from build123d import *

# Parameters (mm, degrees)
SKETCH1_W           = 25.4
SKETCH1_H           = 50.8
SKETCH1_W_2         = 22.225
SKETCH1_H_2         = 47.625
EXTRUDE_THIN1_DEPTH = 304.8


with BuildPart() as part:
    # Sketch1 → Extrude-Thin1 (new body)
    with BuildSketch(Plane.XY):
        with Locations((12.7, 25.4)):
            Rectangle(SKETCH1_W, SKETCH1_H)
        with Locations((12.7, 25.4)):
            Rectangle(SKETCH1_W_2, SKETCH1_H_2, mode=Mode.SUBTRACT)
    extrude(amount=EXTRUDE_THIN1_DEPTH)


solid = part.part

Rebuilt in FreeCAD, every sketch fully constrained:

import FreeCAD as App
import Part
import Sketcher
from FreeCAD import Vector
Q = App.Units.Quantity


def add_polygon(sketch, points):
    """Adds a closed chain of lines whose ends are joined by coincident constraints."""
    first, n = sketch.GeometryCount, len(points)
    for a, b in zip(points, points[1:] + points[:1]):
        sketch.addGeometry(Part.LineSegment(App.Vector(*a, 0), App.Vector(*b, 0)), False)
    for i in range(n):
        sketch.addConstraint(Sketcher.Constraint("Coincident", first + i, 2, first + (i + 1) % n, 1))

doc = App.newDocument("Part")
params = doc.addObject("Spreadsheet::Sheet", "Params")
for row, (alias, value) in enumerate([
    ("sketch1_width", "1 in"),
    ("sketch1_height", "2 in"),
    ("sketch1_width2", "0.875 in"),
    ("sketch1_height2", "1.875 in"),
    ("pad1_length", "12 in"),
], start=1):
    params.set(f"A{row}", alias)
    params.set(f"B{row}", "=" + value)
    params.setAlias(f"B{row}", alias)

body = doc.addObject("PartDesign::Body", "Body")

# Sketch on XY plane
sketch1 = body.newObject("Sketcher::SketchObject", "Sketch")
sketch1.AttachmentSupport = (doc.getObject("XY_Plane"), [""])
sketch1.MapMode = "FlatFace"
add_polygon(sketch1, [(0, 51), (0, 0), (25, 0), (25, 51)])  # lines 0-3
add_polygon(sketch1, [(24, 2), (2, 2), (2, 49), (24, 49)])  # lines 4-7
sketch1.addConstraint([
    Sketcher.Constraint("Vertical", 0),
    Sketcher.Constraint("Horizontal", 1),
    Sketcher.Constraint("Vertical", 2),
    Sketcher.Constraint("Horizontal", 3),
    Sketcher.Constraint("Horizontal", 4),
    Sketcher.Constraint("Vertical", 5),
    Sketcher.Constraint("Horizontal", 6),
    Sketcher.Constraint("Vertical", 7),
    Sketcher.Constraint("Coincident", 0, 2, -1, 1),
    Sketcher.Constraint("DistanceX", 1, 1, 1, 2, Q("1 in")),
    Sketcher.Constraint("DistanceY", 0, 2, 0, 1, Q("2 in")),
    Sketcher.Constraint("DistanceX", 4, 2, 4, 1, Q("0.875 in")),
    Sketcher.Constraint("DistanceY", 5, 1, 5, 2, Q("1.875 in")),
    Sketcher.Constraint("DistanceX", -1, 1, 4, 2, Q("0.0625 in")),
    Sketcher.Constraint("DistanceY", -1, 1, 4, 2, Q("0.0625 in")),
])
sketch1.setExpression("Constraints[17]", "Params.sketch1_width")
sketch1.setExpression("Constraints[18]", "Params.sketch1_height")
sketch1.setExpression("Constraints[19]", "Params.sketch1_width2")
sketch1.setExpression("Constraints[20]", "Params.sketch1_height2")
pad1 = body.newObject("PartDesign::Pad", "Pad")
pad1.Profile = sketch1
pad1.setExpression("Length", "Params.pad1_length")

doc.recompute()
